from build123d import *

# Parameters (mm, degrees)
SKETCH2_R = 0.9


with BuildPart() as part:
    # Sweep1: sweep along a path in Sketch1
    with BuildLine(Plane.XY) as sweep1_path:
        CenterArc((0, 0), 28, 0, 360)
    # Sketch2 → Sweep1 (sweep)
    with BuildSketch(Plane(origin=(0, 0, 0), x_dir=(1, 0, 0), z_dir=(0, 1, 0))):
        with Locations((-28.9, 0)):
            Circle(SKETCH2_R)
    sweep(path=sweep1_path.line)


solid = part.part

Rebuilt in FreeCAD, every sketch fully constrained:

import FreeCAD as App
import Part
import Sketcher

V = App.Vector
Q = App.Units.Quantity

doc = App.newDocument("Part")
body = doc.addObject("PartDesign::Body", "Body")

# Sketch on XZ plane
sketch1 = doc.addObject("Sketcher::SketchObject", "Sketch")
body.addObject(sketch1)
sketch1.AttachmentSupport = (doc.XZ_Plane, [""])
sketch1.MapMode = "FlatFace"
sketch1.addGeometry(Part.Circle(V(-28.9, 0, 0), V(0, 0, 1), 0.9), False)
sketch1.addConstraint([
    Sketcher.Constraint("PointOnObject", 0, 3, -1),
    Sketcher.Constraint("Diameter", 0, Q("1.8 mm")),
    Sketcher.Constraint("DistanceX", 0, 3, -1, 1, Q("28.9 mm")),
])

# Sketch on XY plane
sketch2 = doc.addObject("Sketcher::SketchObject", "Sketch001")
body.addObject(sketch2)
sketch2.AttachmentSupport = (doc.XY_Plane, [""])
sketch2.MapMode = "FlatFace"
sketch2.addGeometry(Part.Circle(V(0, 0, 0), V(0, 0, 1), 28), False)
sketch2.addConstraint([
    Sketcher.Constraint("Coincident", 0, 3, -1, 1),
    Sketcher.Constraint("Diameter", 0, Q("56 mm")),
])
doc.recompute()

additivepipe = doc.addObject("PartDesign::AdditivePipe", "AdditivePipe")
body.addObject(additivepipe)
additivepipe.Profile = sketch1
additivepipe.Spine = (sketch2, ["Edge1"])

doc.recompute()
